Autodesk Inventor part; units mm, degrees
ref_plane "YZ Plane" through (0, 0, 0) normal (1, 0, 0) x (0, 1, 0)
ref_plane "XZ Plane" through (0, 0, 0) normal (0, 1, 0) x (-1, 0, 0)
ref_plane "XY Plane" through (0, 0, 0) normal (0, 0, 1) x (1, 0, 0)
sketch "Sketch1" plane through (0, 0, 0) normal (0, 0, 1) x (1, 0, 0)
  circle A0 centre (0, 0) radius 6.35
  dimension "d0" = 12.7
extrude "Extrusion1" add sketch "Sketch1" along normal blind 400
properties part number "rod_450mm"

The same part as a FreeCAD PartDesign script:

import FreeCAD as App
import Part
import Sketcher
from FreeCAD import Vector
Q = App.Units.Quantity

doc = App.newDocument("Part")
body = doc.addObject("PartDesign::Body", "Body")

# Sketch on XY plane
sketch1 = body.newObject("Sketcher::SketchObject", "Sketch")
sketch1.AttachmentSupport = (doc.getObject("XY_Plane"), [""])
sketch1.MapMode = "FlatFace"
sketch1.addGeometry(Part.Circle(Vector(0, 0, 0), Vector(0, 0, 1), 6.35), False)
sketch1.addConstraint([
    Sketcher.Constraint("Coincident", 0, 3, -1, 1),
    Sketcher.Constraint("Diameter", 0, Q("12.7 mm")),
])
pad1 = body.newObject("PartDesign::Pad", "Pad")
pad1.Profile = sketch1
pad1.Length = 400

doc.recompute()
